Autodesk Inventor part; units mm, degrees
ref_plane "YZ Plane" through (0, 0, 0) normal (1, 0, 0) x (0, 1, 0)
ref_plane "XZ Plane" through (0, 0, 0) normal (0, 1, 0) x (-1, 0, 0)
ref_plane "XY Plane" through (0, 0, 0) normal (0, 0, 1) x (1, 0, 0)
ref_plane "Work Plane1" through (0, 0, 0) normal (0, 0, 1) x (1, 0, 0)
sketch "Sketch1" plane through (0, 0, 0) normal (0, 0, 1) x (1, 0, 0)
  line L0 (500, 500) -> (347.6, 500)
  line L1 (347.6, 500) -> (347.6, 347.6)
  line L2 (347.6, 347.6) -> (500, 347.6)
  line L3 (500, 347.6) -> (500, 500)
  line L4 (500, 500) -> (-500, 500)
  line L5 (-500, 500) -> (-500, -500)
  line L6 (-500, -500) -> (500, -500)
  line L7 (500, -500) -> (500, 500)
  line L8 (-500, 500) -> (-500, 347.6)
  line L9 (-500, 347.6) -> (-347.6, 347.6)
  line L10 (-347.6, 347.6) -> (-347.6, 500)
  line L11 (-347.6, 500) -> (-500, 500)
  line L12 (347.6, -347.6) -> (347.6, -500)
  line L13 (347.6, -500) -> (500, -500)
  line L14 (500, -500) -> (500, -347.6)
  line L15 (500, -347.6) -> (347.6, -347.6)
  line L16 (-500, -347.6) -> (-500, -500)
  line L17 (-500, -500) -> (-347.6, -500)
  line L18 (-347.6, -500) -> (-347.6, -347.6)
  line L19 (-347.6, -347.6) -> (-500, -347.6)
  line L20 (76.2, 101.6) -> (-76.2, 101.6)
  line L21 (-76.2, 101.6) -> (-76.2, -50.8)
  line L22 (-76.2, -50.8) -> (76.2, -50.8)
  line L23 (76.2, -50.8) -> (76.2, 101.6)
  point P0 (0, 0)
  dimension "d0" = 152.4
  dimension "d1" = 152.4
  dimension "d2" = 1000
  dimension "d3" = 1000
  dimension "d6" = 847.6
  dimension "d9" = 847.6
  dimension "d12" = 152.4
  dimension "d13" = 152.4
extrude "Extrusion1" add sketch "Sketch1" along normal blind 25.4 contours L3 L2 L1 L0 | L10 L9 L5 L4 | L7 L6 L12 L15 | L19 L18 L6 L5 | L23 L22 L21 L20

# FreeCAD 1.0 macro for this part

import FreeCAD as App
import Part
import Sketcher
from FreeCAD import Vector
Q = App.Units.Quantity


def add_polygon(sketch, points):
    """Adds a closed chain of lines whose ends are joined by coincident constraints."""
    first, n = sketch.GeometryCount, len(points)
    for a, b in zip(points, points[1:] + points[:1]):
        sketch.addGeometry(Part.LineSegment(App.Vector(*a, 0), App.Vector(*b, 0)), False)
    for i in range(n):
        sketch.addConstraint(Sketcher.Constraint("Coincident", first + i, 2, first + (i + 1) % n, 1))

doc = App.newDocument("Part")
params = doc.addObject("Spreadsheet::Sheet", "Params")
for row, (alias, value) in enumerate([
    ("sketch1_width", "6 in"),
    ("pad1_length", "1 in"),
], start=1):
    params.set(f"A{row}", alias)
    params.set(f"B{row}", "=" + value)
    params.setAlias(f"B{row}", alias)

body = doc.addObject("PartDesign::Body", "Body")
body.AllowCompound = True

sketch1 = body.newObject("Sketcher::SketchObject", "Sketch")
sketch1.AttachmentSupport = (doc.getObject("XY_Plane"), [""])
sketch1.MapMode = "FlatFace"
add_polygon(sketch1, [(500, 348), (500, 500), (348, 500), (348, 348)])
add_polygon(sketch1, [(-348, 348), (-348, 500), (-500, 500), (-500, 348)])
add_polygon(sketch1, [(500, -500), (500, -348), (348, -348), (348, -500)])
add_polygon(sketch1, [(-348, -348), (-500, -348), (-500, -500), (-348, -500)])
add_polygon(sketch1, [(76, -51), (76, 102), (-76, 102), (-76, -51)])
sketch1.addConstraint(Sketcher.Constraint("Vertical", 0))
sketch1.addConstraint(Sketcher.Constraint("Horizontal", 1))
sketch1.addConstraint(Sketcher.Constraint("Vertical", 2))
sketch1.addConstraint(Sketcher.Constraint("Horizontal", 3))
sketch1.addConstraint(Sketcher.Constraint("Vertical", 4))
sketch1.addConstraint(Sketcher.Constraint("Horizontal", 5))
sketch1.addConstraint(Sketcher.Constraint("Vertical", 6))
sketch1.addConstraint(Sketcher.Constraint("Horizontal", 7))
sketch1.addConstraint(Sketcher.Constraint("Vertical", 8))
sketch1.addConstraint(Sketcher.Constraint("Horizontal", 9))
sketch1.addConstraint(Sketcher.Constraint("Vertical", 10))
sketch1.addConstraint(Sketcher.Constraint("Horizontal", 11))
sketch1.addConstraint(Sketcher.Constraint("Horizontal", 12))
sketch1.addConstraint(Sketcher.Constraint("Vertical", 13))
sketch1.addConstraint(Sketcher.Constraint("Horizontal", 14))
sketch1.addConstraint(Sketcher.Constraint("Vertical", 15))
sketch1.addConstraint(Sketcher.Constraint("Vertical", 16))
sketch1.addConstraint(Sketcher.Constraint("Horizontal", 17))
sketch1.addConstraint(Sketcher.Constraint("Vertical", 18))
sketch1.addConstraint(Sketcher.Constraint("Horizontal", 19))
sketch1.addConstraint(Sketcher.Constraint("Symmetric", 6, 2, 8, 2, -1, 1))
sketch1.addConstraint(Sketcher.Constraint("Symmetric", 4, 2, 10, 2, -1, 1))
sketch1.addConstraint(Sketcher.Constraint("Symmetric", 3, 2, 12, 2, -1, 1))
sketch1.addConstraint(Sketcher.Constraint("Symmetric", 1, 2, 14, 2, -1, 1))
sketch1.addConstraint(Sketcher.Constraint("Symmetric", 1, 2, 4, 2, -2))
sketch1.addConstraint(Sketcher.Constraint("Symmetric", 3, 2, 6, 2, -2))
sketch1.addConstraint(Sketcher.Constraint("Equal", 14, 17))
sketch1.addConstraint(Sketcher.Constraint("Equal", 19, 0))
sketch1.addConstraint(Sketcher.Constraint("Equal", 15, 16))
sketch1.addConstraint(Sketcher.Constraint("DistanceX", 1, 2, 1, 1, Q("6 in")))
sketch1.addConstraint(Sketcher.Constraint("DistanceX", -1, 1, 16, 2, Q("3 in")))
sketch1.addConstraint(Sketcher.Constraint("DistanceY", -1, 1, 16, 2, Q("4 in")))
sketch1.addConstraint(Sketcher.Constraint("DistanceX", 4, 2, 0, 2, Q("847.6 mm")))
sketch1.addConstraint(Sketcher.Constraint("DistanceY", 8, 2, 0, 2, Q("847.6 mm")))
sketch1.setExpression("Constraints[49]", "Params.sketch1_width")
pad1 = body.newObject("PartDesign::Pad", "Pad")
pad1.Profile = sketch1
pad1.setExpression("Length", "Params.pad1_length")

doc.recompute()
